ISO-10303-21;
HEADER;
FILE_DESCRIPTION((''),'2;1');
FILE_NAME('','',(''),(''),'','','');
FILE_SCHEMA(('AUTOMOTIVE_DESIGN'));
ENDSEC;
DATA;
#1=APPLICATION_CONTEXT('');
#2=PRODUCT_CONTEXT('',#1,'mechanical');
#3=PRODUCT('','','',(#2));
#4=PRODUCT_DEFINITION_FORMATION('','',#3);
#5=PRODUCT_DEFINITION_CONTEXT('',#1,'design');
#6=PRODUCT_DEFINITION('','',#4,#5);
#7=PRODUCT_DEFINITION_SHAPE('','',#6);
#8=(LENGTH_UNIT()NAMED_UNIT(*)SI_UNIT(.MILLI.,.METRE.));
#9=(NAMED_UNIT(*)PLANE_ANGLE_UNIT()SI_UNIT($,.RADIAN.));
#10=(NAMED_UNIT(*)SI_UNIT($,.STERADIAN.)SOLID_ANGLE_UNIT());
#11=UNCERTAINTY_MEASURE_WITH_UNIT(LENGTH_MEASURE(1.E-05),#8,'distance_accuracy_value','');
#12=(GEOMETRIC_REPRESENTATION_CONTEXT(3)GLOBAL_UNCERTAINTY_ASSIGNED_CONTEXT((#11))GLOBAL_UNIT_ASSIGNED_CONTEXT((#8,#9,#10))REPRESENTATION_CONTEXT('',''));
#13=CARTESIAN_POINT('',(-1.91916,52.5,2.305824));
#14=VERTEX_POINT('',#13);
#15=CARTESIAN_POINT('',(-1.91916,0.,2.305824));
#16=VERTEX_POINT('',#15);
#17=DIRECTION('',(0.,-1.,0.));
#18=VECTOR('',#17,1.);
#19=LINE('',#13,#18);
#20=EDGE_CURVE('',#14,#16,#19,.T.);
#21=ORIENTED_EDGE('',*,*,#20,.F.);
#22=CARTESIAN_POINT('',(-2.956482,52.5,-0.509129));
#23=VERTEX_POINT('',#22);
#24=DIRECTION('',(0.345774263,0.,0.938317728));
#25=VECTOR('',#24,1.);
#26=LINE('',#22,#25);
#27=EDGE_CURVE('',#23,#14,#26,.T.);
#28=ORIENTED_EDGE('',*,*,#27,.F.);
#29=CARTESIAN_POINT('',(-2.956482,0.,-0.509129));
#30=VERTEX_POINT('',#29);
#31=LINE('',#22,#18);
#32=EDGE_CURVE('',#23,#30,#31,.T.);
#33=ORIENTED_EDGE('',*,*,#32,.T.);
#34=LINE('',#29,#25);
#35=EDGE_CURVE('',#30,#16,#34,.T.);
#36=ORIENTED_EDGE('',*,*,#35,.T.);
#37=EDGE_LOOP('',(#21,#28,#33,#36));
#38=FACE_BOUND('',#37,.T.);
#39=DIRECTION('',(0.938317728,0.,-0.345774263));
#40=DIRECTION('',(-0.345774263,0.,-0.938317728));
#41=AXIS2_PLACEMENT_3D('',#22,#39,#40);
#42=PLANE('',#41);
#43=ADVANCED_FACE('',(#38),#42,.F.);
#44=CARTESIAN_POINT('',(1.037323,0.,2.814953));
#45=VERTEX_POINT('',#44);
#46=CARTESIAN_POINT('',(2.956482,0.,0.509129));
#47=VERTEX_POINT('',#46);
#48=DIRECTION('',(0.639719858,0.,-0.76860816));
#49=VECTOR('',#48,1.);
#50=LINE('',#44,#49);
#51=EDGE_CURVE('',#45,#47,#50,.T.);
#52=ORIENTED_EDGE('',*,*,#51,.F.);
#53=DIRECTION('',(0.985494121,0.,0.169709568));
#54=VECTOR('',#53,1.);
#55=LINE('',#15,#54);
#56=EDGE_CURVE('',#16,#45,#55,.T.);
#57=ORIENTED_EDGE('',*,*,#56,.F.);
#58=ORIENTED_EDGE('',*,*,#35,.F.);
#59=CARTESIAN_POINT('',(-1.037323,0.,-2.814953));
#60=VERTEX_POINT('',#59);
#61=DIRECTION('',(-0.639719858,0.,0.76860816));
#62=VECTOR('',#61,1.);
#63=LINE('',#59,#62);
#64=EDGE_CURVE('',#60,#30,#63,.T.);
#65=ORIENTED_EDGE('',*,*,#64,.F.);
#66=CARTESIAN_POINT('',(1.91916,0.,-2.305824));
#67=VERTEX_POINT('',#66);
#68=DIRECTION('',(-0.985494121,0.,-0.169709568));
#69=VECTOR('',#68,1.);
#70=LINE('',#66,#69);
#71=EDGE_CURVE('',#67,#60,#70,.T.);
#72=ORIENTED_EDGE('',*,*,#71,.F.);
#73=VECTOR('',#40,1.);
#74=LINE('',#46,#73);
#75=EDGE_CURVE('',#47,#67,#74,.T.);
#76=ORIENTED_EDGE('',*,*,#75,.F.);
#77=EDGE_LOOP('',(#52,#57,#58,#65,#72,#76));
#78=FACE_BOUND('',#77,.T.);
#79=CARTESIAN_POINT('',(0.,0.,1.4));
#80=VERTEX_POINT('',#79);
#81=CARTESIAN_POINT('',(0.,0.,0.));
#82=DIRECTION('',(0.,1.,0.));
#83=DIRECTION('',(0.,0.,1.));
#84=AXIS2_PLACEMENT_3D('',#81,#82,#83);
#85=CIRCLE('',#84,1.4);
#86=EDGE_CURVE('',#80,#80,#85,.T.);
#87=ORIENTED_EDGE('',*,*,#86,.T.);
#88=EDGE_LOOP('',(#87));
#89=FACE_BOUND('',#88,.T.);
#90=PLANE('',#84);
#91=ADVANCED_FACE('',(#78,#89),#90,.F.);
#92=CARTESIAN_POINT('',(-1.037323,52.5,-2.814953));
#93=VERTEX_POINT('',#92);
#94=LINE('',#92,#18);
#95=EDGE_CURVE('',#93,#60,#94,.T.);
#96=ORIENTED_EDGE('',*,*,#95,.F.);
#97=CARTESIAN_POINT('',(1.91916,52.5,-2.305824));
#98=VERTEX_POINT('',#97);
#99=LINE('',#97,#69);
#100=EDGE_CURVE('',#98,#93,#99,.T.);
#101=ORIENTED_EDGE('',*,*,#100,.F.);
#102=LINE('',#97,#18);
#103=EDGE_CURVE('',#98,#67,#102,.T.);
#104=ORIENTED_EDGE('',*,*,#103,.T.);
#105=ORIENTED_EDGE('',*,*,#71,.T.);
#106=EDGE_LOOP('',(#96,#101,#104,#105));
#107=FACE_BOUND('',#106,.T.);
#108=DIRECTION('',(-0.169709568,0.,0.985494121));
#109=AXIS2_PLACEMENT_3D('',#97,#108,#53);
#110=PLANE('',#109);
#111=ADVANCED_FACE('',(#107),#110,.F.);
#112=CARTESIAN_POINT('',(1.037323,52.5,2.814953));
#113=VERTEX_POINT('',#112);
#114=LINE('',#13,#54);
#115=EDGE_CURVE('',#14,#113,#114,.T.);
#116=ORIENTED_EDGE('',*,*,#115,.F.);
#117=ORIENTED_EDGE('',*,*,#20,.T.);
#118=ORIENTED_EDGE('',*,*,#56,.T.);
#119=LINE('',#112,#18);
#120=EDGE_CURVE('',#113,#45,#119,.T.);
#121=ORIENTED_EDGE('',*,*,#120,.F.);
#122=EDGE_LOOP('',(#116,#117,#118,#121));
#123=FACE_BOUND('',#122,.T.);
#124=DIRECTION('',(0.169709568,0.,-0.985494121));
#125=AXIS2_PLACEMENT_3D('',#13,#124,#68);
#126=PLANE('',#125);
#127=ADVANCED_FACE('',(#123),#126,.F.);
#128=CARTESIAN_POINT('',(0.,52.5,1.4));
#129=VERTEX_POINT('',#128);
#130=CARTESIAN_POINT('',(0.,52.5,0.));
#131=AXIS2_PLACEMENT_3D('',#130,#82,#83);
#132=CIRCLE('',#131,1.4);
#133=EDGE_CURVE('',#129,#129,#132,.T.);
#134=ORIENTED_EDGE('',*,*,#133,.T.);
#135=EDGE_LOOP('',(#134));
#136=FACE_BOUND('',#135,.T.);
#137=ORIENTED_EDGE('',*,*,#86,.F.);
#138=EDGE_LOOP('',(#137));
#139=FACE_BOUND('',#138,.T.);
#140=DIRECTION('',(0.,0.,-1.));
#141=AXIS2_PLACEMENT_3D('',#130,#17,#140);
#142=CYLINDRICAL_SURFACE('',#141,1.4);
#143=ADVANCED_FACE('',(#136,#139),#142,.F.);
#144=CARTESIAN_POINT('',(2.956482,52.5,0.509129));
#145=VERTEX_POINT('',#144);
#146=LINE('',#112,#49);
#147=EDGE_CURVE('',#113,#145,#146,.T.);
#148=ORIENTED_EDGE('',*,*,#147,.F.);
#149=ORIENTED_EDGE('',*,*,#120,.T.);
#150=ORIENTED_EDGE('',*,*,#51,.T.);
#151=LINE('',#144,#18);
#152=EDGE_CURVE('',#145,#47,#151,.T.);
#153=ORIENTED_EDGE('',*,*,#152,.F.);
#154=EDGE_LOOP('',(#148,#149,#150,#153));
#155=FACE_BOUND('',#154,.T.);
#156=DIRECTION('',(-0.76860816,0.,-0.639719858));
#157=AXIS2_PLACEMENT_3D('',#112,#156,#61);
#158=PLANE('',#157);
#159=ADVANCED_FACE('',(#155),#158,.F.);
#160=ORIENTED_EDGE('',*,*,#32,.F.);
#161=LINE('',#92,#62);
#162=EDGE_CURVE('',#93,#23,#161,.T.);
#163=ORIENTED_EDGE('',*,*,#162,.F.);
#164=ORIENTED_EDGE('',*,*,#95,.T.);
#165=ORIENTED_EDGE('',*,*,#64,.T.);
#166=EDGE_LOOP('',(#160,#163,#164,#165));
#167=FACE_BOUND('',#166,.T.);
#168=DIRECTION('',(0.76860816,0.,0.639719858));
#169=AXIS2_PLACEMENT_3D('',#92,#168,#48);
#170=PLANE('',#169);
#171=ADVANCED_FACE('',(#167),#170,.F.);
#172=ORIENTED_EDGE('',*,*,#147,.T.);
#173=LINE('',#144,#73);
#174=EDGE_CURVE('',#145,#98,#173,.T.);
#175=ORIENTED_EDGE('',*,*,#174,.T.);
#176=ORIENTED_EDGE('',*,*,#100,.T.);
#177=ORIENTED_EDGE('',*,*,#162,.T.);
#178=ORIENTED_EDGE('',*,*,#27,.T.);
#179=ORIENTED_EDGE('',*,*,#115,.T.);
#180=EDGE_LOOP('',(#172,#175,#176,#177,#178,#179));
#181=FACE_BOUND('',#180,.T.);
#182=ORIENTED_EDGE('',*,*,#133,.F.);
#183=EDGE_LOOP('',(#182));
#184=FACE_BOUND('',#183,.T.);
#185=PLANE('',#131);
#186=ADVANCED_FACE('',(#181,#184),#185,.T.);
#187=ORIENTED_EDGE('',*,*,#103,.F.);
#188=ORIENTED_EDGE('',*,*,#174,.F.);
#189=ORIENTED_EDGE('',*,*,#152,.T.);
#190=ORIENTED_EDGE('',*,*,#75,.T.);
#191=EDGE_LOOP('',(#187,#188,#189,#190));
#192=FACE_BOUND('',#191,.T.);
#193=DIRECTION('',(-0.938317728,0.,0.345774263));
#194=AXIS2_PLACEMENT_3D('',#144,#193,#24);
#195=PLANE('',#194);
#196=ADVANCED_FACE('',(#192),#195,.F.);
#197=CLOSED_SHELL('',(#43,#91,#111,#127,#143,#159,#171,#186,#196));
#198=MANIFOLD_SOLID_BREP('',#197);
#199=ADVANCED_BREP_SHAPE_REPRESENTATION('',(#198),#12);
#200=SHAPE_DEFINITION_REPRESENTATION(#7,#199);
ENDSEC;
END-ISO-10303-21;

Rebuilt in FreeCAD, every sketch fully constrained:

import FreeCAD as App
import Part
import Sketcher

V = App.Vector

doc = App.newDocument("Part")
body = doc.addObject("PartDesign::Body", "Body")

sketch1 = body.newObject("Sketcher::SketchObject", "Sketch")
sketch1.AttachmentSupport = (doc.getObject("XZ_Plane"), [""])
sketch1.MapMode = "FlatFace"
sketch1.addGeometry(Part.LineSegment(V(1, 2.8, 0), V(3, 0.5, 0)), False)
sketch1.addGeometry(Part.LineSegment(V(3, 0.5, 0), V(1.9, -2.3, 0)), False)
sketch1.addGeometry(Part.LineSegment(V(1.9, -2.3, 0), V(-1, -2.8, 0)), False)
sketch1.addGeometry(Part.LineSegment(V(-1, -2.8, 0), V(-3, -0.5, 0)), False)
sketch1.addGeometry(Part.LineSegment(V(-3, -0.5, 0), V(-1.9, 2.3, 0)), False)
sketch1.addGeometry(Part.LineSegment(V(-1.9, 2.3, 0), V(1, 2.8, 0)), False)
sketch1.addGeometry(Part.Circle(V(0, 0, 0), V(0, 0, 1), 1.4), False)
sketch1.addConstraint(Sketcher.Constraint("Coincident", 0, 2, 1, 1))
sketch1.addConstraint(Sketcher.Constraint("Coincident", 1, 2, 2, 1))
sketch1.addConstraint(Sketcher.Constraint("Coincident", 2, 2, 3, 1))
sketch1.addConstraint(Sketcher.Constraint("Coincident", 3, 2, 4, 1))
sketch1.addConstraint(Sketcher.Constraint("Coincident", 4, 2, 5, 1))
sketch1.addConstraint(Sketcher.Constraint("Coincident", 5, 2, 0, 1))
sketch1.addConstraint(Sketcher.Constraint("Coincident", 6, 3, -1, 1))
sketch1.addConstraint(Sketcher.Constraint("Symmetric", 0, 2, 3, 2, -1, 1))
sketch1.addConstraint(Sketcher.Constraint("Symmetric", 1, 2, 4, 2, -1, 1))
sketch1.addConstraint(Sketcher.Constraint("Symmetric", 2, 2, 5, 2, -1, 1))
sketch1.addConstraint(Sketcher.Constraint("Equal", 0, 1))
sketch1.addConstraint(Sketcher.Constraint("Equal", 1, 2))
sketch1.addConstraint(Sketcher.Constraint("Diameter", 6, 2.8))
sketch1.addConstraint(Sketcher.Constraint("Distance", 0, 3.0))
sketch1.addConstraint(Sketcher.Constraint("DistanceY", -1, 1, 0, 2, 0.509129))
sketch1.addConstraint(Sketcher.Constraint("DistanceX", -1, 1, 1, 2, 1.91916))
sketch1.addConstraint(Sketcher.Constraint("DistanceY", 2, 2, 1, 2, 0.509129))
pad1 = body.newObject("PartDesign::Pad", "Pad")
pad1.Profile = sketch1
pad1.Length = 52.5
pad1.Reversed = True

doc.recompute()
